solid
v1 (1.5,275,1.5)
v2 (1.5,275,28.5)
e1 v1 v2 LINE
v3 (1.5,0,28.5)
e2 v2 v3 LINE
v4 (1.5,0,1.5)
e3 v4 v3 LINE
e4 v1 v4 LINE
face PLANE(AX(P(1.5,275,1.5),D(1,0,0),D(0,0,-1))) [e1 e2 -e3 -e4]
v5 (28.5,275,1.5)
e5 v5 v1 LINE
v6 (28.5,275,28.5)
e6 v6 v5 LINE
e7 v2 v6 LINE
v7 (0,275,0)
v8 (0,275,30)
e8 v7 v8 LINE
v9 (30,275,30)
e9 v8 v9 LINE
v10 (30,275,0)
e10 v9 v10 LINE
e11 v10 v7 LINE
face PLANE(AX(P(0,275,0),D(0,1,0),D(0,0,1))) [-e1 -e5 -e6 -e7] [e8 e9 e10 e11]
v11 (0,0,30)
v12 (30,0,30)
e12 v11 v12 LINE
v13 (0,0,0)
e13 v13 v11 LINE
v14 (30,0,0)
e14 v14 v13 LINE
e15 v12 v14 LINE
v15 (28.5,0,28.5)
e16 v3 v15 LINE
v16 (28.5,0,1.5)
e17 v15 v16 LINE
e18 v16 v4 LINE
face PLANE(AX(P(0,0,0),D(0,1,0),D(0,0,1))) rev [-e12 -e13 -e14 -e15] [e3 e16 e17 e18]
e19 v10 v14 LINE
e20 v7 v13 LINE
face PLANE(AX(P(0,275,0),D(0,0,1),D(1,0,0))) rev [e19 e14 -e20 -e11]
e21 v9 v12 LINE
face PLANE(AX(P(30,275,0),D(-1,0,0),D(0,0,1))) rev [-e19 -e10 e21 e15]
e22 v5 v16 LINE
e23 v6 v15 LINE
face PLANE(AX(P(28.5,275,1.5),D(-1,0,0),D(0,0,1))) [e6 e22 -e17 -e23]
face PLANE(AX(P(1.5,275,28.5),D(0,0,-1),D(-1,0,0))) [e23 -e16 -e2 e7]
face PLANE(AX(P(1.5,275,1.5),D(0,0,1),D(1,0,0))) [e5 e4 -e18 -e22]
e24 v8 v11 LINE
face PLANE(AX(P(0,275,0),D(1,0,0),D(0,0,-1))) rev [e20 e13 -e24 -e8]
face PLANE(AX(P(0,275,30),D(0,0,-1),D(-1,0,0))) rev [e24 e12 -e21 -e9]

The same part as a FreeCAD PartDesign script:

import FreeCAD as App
import Part
import Sketcher

V = App.Vector
Q = App.Units.Quantity


def add_polygon(sketch, points):
    """Adds a closed chain of lines whose ends are joined by coincident constraints."""
    first, n = sketch.GeometryCount, len(points)
    for a, b in zip(points, points[1:] + points[:1]):
        sketch.addGeometry(Part.LineSegment(App.Vector(*a, 0), App.Vector(*b, 0)), False)
    for i in range(n):
        sketch.addConstraint(Sketcher.Constraint("Coincident", first + i, 2, first + (i + 1) % n, 1))

doc = App.newDocument("Part")
body = doc.addObject("PartDesign::Body", "Body")

# Sketch on XZ plane
sketch1 = doc.addObject("Sketcher::SketchObject", "Sketch")
body.addObject(sketch1)
sketch1.AttachmentSupport = (doc.XZ_Plane, [""])
sketch1.MapMode = "FlatFace"
add_polygon(sketch1, [(0, 0), (0, 30), (30, 30), (30, 0)])  # lines 0-3
add_polygon(sketch1, [(28, 28), (2, 28), (2, 2), (28, 2)])  # lines 4-7
sketch1.addConstraint(Sketcher.Constraint("Vertical", 0))
sketch1.addConstraint(Sketcher.Constraint("Horizontal", 1))
sketch1.addConstraint(Sketcher.Constraint("Vertical", 2))
sketch1.addConstraint(Sketcher.Constraint("Horizontal", 3))
sketch1.addConstraint(Sketcher.Constraint("Horizontal", 4))
sketch1.addConstraint(Sketcher.Constraint("Vertical", 5))
sketch1.addConstraint(Sketcher.Constraint("Horizontal", 6))
sketch1.addConstraint(Sketcher.Constraint("Vertical", 7))
sketch1.addConstraint(Sketcher.Constraint("Coincident", 3, 2, -1, 1))
sketch1.addConstraint(Sketcher.Constraint("Equal", 3, 0))
sketch1.addConstraint(Sketcher.Constraint("Equal", 6, 5))
sketch1.addConstraint(Sketcher.Constraint("DistanceX", 1, 1, 1, 2, Q("30 mm")))
sketch1.addConstraint(Sketcher.Constraint("DistanceX", 4, 2, 4, 1, Q("27 mm")))
sketch1.addConstraint(Sketcher.Constraint("DistanceX", -1, 1, 4, 2, Q("1.5 mm")))
sketch1.addConstraint(Sketcher.Constraint("DistanceY", -1, 1, 4, 2, Q("28.5 mm")))
pad1 = doc.addObject("PartDesign::Pad", "Pad")
body.addObject(pad1)
pad1.Profile = sketch1
pad1.Length = 275
pad1.Reversed = True

doc.recompute()
